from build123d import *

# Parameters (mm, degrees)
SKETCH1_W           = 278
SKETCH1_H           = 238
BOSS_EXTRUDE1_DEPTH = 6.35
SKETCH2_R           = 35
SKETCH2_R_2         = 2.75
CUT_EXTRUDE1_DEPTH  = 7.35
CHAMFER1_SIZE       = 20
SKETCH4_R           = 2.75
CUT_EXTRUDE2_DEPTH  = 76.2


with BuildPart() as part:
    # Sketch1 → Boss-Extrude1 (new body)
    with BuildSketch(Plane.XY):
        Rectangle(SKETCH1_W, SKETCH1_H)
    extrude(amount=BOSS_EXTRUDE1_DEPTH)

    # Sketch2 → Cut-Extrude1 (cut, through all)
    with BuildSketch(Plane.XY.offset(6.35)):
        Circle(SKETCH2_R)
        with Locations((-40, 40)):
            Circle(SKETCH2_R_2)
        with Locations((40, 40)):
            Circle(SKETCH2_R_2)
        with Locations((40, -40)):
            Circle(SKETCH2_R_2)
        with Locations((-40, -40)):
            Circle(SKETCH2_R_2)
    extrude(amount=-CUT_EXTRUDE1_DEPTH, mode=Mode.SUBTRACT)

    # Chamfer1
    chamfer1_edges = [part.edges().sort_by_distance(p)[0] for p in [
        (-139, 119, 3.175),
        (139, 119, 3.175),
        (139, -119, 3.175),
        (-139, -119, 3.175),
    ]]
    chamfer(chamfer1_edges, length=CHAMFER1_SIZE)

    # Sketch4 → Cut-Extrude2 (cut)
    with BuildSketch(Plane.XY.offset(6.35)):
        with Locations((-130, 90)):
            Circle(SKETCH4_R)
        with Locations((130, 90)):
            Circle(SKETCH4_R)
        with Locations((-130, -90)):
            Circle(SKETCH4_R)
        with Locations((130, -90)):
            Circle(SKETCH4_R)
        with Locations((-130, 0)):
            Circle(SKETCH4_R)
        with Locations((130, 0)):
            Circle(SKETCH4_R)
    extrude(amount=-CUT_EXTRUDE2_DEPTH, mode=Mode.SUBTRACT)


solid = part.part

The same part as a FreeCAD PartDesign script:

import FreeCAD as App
import Part
import Sketcher
from FreeCAD import Vector
Q = App.Units.Quantity


def edges_at(feature, points):
    """Names of the edges that pass closest to the given points."""
    edges = feature.Shape.Edges
    near = lambda p: min(range(len(edges)), key=lambda i: edges[i].distToShape(Part.Vertex(*p))[0])
    return sorted({f"Edge{near(p) + 1}" for p in points})


def add_polygon(sketch, points):
    """Adds a closed chain of lines whose ends are joined by coincident constraints."""
    first, n = sketch.GeometryCount, len(points)
    for a, b in zip(points, points[1:] + points[:1]):
        sketch.addGeometry(Part.LineSegment(App.Vector(*a, 0), App.Vector(*b, 0)), False)
    for i in range(n):
        sketch.addConstraint(Sketcher.Constraint("Coincident", first + i, 2, first + (i + 1) % n, 1))

doc = App.newDocument("Part")
body = doc.addObject("PartDesign::Body", "Body")

# Sketch on XY plane
sketch1 = body.newObject("Sketcher::SketchObject", "Sketch")
sketch1.AttachmentSupport = (doc.getObject("XY_Plane"), [""])
sketch1.MapMode = "FlatFace"
add_polygon(sketch1, [(-139, 119), (-139, -119), (139, -119), (139, 119)])  # lines 0-3
sketch1.addConstraint([
    Sketcher.Constraint("Vertical", 0),
    Sketcher.Constraint("Horizontal", 1),
    Sketcher.Constraint("Vertical", 2),
    Sketcher.Constraint("Horizontal", 3),
    Sketcher.Constraint("Symmetric", 0, 2, 2, 2, -1, 1),
    Sketcher.Constraint("DistanceX", 1, 1, 1, 2, Q("278 mm")),
    Sketcher.Constraint("DistanceY", 0, 2, 0, 1, Q("238 mm")),
])
pad1 = body.newObject("PartDesign::Pad", "Pad")
pad1.Profile = sketch1
pad1.Length = 6.35

# Sketch on XY plane
sketch2 = body.newObject("Sketcher::SketchObject", "Sketch001")
sketch2.AttachmentSupport = (doc.getObject("XY_Plane"), [""])
sketch2.MapMode = "FlatFace"
sketch2.AttachmentOffset = App.Placement(Vector(0, 0, 6.35), App.Rotation())
sketch2.addGeometry([
    Part.Circle(Vector(0, 0, 0), Vector(0, 0, 1), 35),  # 0
    Part.Circle(Vector(-40, 40, 0), Vector(0, 0, 1), 2.75),  # 1
    Part.Circle(Vector(40, 40, 0), Vector(0, 0, 1), 2.75),  # 2
    Part.Circle(Vector(40, -40, 0), Vector(0, 0, 1), 2.75),  # 3
    Part.Circle(Vector(-40, -40, 0), Vector(0, 0, 1), 2.75),  # 4
], False)
sketch2.addConstraint([
    Sketcher.Constraint("Coincident", 0, 3, -1, 1),
    Sketcher.Constraint("Equal", 1, 2),
    Sketcher.Constraint("Equal", 2, 3),
    Sketcher.Constraint("Equal", 3, 4),
    Sketcher.Constraint("Symmetric", 1, 3, 3, 3, -1, 1),
    Sketcher.Constraint("Symmetric", 2, 3, 4, 3, -1, 1),
    Sketcher.Constraint("Symmetric", 1, 3, 2, 3, -2),
    Sketcher.Constraint("Diameter", 0, Q("70 mm")),
    Sketcher.Constraint("Diameter", 1, Q("5.5 mm")),
    Sketcher.Constraint("DistanceX", 1, 3, -1, 1, Q("40 mm")),
    Sketcher.Constraint("DistanceY", -1, 1, 1, 3, Q("40 mm")),
])
pocket1 = body.newObject("PartDesign::Pocket", "Pocket")
pocket1.Profile = sketch2
pocket1.Type = "ThroughAll"
doc.recompute()

chamfer = body.newObject("PartDesign::Chamfer", "Chamfer")
chamfer.Base = (pocket1, edges_at(pocket1, [
    (-139, 119, 3.175),
    (139, 119, 3.175),
    (139, -119, 3.175),
    (-139, -119, 3.175),
]))
chamfer.Size = 20

# Sketch on XY plane
sketch3 = body.newObject("Sketcher::SketchObject", "Sketch002")
sketch3.AttachmentSupport = (doc.getObject("XY_Plane"), [""])
sketch3.MapMode = "FlatFace"
sketch3.AttachmentOffset = App.Placement(Vector(0, 0, 6.35), App.Rotation())
sketch3.addGeometry([
    Part.Circle(Vector(-130, 90, 0), Vector(0, 0, 1), 2.75),  # 0
    Part.Circle(Vector(130, 90, 0), Vector(0, 0, 1), 2.75),  # 1
    Part.Circle(Vector(-130, -90, 0), Vector(0, 0, 1), 2.75),  # 2
    Part.Circle(Vector(130, -90, 0), Vector(0, 0, 1), 2.75),  # 3
    Part.Circle(Vector(-130, 0, 0), Vector(0, 0, 1), 2.75),  # 4
    Part.Circle(Vector(130, 0, 0), Vector(0, 0, 1), 2.75),  # 5
], False)
sketch3.addConstraint([
    Sketcher.Constraint("Equal", 0, 1),
    Sketcher.Constraint("Equal", 1, 2),
    Sketcher.Constraint("Equal", 2, 3),
    Sketcher.Constraint("Equal", 3, 4),
    Sketcher.Constraint("Equal", 4, 5),
    Sketcher.Constraint("Symmetric", 1, 3, 2, 3, -1, 1),
    Sketcher.Constraint("Symmetric", 0, 3, 3, 3, -1, 1),
    Sketcher.Constraint("Symmetric", 4, 3, 5, 3, -1, 1),
    Sketcher.Constraint("Symmetric", 0, 3, 1, 3, -2),
    Sketcher.Constraint("PointOnObject", 4, 3, -1),
    Sketcher.Constraint("Vertical", 2, 3, 4, 3),
    Sketcher.Constraint("Diameter", 0, Q("5.5 mm")),
    Sketcher.Constraint("DistanceX", 0, 3, -1, 1, Q("130 mm")),
    Sketcher.Constraint("DistanceY", -1, 1, 0, 3, Q("90 mm")),
])
pocket2 = body.newObject("PartDesign::Pocket", "Pocket001")
pocket2.Profile = sketch3
pocket2.Length = 76.2

doc.recompute()
